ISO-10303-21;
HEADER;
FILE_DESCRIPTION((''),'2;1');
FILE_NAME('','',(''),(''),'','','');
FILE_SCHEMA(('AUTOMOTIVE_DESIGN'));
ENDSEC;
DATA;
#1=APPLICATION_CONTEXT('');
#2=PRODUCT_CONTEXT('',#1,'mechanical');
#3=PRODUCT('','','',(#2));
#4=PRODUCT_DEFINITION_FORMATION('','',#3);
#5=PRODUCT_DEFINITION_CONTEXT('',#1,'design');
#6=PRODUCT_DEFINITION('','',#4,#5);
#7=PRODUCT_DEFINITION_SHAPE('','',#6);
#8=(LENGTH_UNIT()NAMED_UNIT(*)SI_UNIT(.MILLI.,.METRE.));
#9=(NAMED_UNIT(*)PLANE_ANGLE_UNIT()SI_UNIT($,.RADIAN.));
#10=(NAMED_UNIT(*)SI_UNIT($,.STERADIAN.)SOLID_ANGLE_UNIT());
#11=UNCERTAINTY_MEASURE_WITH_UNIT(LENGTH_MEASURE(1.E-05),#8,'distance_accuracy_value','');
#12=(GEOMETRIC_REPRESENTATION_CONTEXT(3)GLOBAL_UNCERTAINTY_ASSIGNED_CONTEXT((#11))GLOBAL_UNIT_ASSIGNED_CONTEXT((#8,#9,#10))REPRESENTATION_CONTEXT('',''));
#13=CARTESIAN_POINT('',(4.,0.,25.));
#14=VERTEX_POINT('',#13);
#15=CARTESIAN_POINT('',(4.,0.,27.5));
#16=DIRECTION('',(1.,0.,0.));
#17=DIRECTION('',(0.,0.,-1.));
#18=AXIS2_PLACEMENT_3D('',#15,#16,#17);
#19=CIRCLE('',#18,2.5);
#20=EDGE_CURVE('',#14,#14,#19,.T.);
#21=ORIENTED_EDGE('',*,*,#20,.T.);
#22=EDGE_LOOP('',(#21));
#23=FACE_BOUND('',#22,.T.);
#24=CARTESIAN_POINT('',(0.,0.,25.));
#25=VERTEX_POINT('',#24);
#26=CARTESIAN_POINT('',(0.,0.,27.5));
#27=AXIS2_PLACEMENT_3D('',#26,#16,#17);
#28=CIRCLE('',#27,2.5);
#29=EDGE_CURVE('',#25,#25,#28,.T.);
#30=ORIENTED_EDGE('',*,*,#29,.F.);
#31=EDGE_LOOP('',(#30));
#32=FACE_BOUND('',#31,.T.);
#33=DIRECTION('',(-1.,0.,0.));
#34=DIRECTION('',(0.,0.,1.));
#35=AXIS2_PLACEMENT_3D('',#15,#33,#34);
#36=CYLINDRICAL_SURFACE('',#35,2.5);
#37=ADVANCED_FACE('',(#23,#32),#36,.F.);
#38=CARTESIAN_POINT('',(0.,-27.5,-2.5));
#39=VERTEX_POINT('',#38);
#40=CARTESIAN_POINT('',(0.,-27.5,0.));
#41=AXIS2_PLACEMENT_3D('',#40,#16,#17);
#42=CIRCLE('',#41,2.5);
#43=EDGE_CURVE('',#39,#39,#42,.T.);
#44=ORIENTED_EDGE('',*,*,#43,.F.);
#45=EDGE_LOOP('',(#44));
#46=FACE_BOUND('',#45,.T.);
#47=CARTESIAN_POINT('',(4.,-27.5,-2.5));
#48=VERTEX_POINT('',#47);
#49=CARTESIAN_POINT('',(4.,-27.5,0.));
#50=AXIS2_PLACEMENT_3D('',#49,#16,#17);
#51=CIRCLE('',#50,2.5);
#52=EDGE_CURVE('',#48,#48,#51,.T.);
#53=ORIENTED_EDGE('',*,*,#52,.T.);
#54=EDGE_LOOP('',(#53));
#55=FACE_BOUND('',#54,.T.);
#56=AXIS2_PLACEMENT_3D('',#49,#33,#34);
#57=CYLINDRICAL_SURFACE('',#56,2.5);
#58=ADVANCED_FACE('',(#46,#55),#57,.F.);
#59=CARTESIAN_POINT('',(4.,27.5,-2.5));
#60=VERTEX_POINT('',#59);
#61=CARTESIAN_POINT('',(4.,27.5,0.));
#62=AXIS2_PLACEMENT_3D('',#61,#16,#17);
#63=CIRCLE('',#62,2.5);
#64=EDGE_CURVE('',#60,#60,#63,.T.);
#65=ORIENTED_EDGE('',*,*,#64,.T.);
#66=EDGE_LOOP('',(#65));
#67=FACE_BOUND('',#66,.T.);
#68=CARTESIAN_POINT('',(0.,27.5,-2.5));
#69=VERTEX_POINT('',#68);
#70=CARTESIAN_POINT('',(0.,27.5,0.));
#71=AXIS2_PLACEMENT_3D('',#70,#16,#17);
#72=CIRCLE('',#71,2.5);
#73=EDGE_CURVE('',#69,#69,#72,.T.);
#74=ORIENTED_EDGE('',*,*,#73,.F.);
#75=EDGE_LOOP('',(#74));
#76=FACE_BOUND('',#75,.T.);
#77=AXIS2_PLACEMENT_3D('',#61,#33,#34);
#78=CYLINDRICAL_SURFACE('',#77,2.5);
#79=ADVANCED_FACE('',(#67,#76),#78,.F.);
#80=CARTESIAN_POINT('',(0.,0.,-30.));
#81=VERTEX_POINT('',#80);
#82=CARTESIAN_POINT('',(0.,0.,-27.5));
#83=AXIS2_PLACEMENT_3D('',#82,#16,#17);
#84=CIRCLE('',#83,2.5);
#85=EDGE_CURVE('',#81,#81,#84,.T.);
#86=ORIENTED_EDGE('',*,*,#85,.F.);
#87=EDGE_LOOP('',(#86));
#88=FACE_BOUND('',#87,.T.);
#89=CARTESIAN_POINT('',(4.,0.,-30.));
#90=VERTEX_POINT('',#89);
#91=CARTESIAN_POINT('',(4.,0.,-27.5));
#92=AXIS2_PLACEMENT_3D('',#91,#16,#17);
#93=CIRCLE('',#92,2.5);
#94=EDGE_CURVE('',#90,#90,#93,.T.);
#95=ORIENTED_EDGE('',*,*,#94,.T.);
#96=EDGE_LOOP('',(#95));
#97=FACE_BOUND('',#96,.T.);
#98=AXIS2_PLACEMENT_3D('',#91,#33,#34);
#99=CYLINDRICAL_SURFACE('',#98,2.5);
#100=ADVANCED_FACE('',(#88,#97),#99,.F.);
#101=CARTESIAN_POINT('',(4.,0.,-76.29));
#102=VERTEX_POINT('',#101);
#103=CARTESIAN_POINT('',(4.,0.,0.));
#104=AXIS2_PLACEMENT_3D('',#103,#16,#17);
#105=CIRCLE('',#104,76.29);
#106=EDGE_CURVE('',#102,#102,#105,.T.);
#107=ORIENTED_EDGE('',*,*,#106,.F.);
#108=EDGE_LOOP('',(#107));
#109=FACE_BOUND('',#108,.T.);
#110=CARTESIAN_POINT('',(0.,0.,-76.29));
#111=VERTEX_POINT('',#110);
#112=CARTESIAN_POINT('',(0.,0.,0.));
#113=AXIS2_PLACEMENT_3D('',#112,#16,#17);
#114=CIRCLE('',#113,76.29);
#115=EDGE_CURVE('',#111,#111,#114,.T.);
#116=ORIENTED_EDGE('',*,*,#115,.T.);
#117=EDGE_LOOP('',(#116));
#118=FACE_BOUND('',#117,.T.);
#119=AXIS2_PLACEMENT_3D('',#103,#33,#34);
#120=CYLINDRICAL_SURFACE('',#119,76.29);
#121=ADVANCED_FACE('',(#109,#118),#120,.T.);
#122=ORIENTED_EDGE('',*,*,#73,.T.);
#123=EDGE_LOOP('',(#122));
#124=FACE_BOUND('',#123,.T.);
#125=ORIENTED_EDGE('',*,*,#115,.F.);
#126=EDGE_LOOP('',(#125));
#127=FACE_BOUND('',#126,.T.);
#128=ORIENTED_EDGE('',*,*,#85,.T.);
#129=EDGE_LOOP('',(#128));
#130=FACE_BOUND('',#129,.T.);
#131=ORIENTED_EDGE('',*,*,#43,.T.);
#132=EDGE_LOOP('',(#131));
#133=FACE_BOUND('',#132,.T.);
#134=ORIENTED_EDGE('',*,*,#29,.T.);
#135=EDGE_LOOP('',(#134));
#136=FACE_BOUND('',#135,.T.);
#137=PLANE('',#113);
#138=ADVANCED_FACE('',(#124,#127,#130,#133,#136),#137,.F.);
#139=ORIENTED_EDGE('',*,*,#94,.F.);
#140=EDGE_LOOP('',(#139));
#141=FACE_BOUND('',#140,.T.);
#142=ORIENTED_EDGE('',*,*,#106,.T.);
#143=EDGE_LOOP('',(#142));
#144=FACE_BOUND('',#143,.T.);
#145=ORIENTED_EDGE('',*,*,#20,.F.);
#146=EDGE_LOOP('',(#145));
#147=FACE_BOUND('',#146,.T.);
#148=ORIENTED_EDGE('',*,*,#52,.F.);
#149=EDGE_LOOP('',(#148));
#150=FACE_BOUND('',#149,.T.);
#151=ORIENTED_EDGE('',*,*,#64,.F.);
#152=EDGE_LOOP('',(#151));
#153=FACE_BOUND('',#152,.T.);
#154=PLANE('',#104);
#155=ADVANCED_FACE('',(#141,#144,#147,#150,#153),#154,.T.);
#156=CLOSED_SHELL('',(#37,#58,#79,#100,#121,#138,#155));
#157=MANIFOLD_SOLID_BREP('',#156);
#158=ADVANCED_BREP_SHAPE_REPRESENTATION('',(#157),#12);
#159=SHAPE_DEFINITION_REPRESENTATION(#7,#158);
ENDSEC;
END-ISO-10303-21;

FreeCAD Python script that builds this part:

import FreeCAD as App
import Part
import Sketcher

doc = App.newDocument("Part")
body = doc.addObject("PartDesign::Body", "Body")

sketch1 = doc.addObject("Sketcher::SketchObject", "Sketch")
body.addObject(sketch1)
sketch1.AttachmentSupport = (doc.YZ_Plane, [""])
sketch1.MapMode = "FlatFace"
sketch1.addGeometry(Part.Circle(App.Vector(0, 0, 0), App.Vector(0, 0, 1), 76.3), False)
sketch1.addGeometry(Part.Circle(App.Vector(-27.5, 0, 0), App.Vector(0, 0, 1), 2.5), False)
sketch1.addGeometry(Part.Circle(App.Vector(0, 27.5, 0), App.Vector(0, 0, 1), 2.5), False)
sketch1.addGeometry(Part.Circle(App.Vector(0, -27.5, 0), App.Vector(0, 0, 1), 2.5), False)
sketch1.addGeometry(Part.Circle(App.Vector(27.5, 0, 0), App.Vector(0, 0, 1), 2.5), False)
sketch1.addConstraint(Sketcher.Constraint("Coincident", 0, 3, -1, 1))
sketch1.addConstraint(Sketcher.Constraint("Equal", 1, 2))
sketch1.addConstraint(Sketcher.Constraint("Equal", 2, 3))
sketch1.addConstraint(Sketcher.Constraint("Equal", 3, 4))
sketch1.addConstraint(Sketcher.Constraint("Symmetric", 2, 3, 3, 3, -1, 1))
sketch1.addConstraint(Sketcher.Constraint("Symmetric", 1, 3, 4, 3, -1, 1))
sketch1.addConstraint(Sketcher.Constraint("PointOnObject", 1, 3, -1))
sketch1.addConstraint(Sketcher.Constraint("PointOnObject", 2, 3, -2))
sketch1.addConstraint(Sketcher.Constraint("Diameter", 1, 5.0))
sketch1.addConstraint(Sketcher.Constraint("Diameter", 0, 152.58))
sketch1.addConstraint(Sketcher.Constraint("DistanceY", 3, 3, 2, 3, 55.0))
sketch1.addConstraint(Sketcher.Constraint("DistanceX", 1, 3, 4, 3, 55.0))
pad1 = doc.addObject("PartDesign::Pad", "Pad")
body.addObject(pad1)
pad1.Profile = sketch1
pad1.Length = 4

doc.recompute()
